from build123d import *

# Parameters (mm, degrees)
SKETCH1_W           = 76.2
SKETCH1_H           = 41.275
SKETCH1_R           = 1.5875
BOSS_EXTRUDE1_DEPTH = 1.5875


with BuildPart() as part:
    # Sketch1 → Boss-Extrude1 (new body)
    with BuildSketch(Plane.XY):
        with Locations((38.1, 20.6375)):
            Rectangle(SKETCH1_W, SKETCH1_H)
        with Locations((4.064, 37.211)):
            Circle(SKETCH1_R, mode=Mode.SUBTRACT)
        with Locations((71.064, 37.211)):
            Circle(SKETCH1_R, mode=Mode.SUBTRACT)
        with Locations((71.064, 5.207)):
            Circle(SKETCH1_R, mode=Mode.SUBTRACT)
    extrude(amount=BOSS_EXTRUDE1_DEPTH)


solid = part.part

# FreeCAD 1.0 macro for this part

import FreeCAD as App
import Part
import Sketcher
Q = App.Units.Quantity


def add_polygon(sketch, points):
    """Adds a closed chain of lines whose ends are joined by coincident constraints."""
    first, n = sketch.GeometryCount, len(points)
    for a, b in zip(points, points[1:] + points[:1]):
        sketch.addGeometry(Part.LineSegment(App.Vector(*a, 0), App.Vector(*b, 0)), False)
    for i in range(n):
        sketch.addConstraint(Sketcher.Constraint("Coincident", first + i, 2, first + (i + 1) % n, 1))

doc = App.newDocument("Part")
body = doc.addObject("PartDesign::Body", "Body")

sketch1 = body.newObject("Sketcher::SketchObject", "Sketch")
sketch1.AttachmentSupport = (doc.getObject("XY_Plane"), [""])
sketch1.MapMode = "FlatFace"
add_polygon(sketch1, [(0, 41.3), (0, 0), (76.2, 0), (76.2, 41.3)])
sketch1.addGeometry(Part.Circle(App.Vector(71.1, 5.2, 0), App.Vector(0, 0, 1), 1.6), False)
sketch1.addGeometry(Part.Circle(App.Vector(4.1, 37.2, 0), App.Vector(0, 0, 1), 1.6), False)
sketch1.addGeometry(Part.Circle(App.Vector(71.1, 37.2, 0), App.Vector(0, 0, 1), 1.6), False)
sketch1.addConstraint([
    Sketcher.Constraint("Vertical", 0),
    Sketcher.Constraint("Horizontal", 1),
    Sketcher.Constraint("Vertical", 2),
    Sketcher.Constraint("Horizontal", 3),
    Sketcher.Constraint("Coincident", 0, 2, -1, 1),
    Sketcher.Constraint("Equal", 4, 5),
    Sketcher.Constraint("Equal", 5, 6),
    Sketcher.Constraint("Horizontal", 5, 3, 6, 3),
    Sketcher.Constraint("Vertical", 4, 3, 6, 3),
    Sketcher.Constraint("DistanceX", 1, 1, 1, 2, Q("3 in")),
    Sketcher.Constraint("Diameter", 4, Q("0.125 in")),
    Sketcher.Constraint("DistanceY", 0, 2, 0, 1, Q("1.625 in")),
    Sketcher.Constraint("DistanceX", -1, 1, 5, 3, Q("0.16 in")),
    Sketcher.Constraint("DistanceY", 4, 3, 5, 3, Q("1.26 in")),
    Sketcher.Constraint("DistanceY", 6, 3, 2, 2, Q("0.16 in")),
    Sketcher.Constraint("DistanceX", -1, 1, 4, 3, 71.064),
])
pad1 = body.newObject("PartDesign::Pad", "Pad")
pad1.Profile = sketch1
pad1.Length = Q("0.0625 in")

doc.recompute()
